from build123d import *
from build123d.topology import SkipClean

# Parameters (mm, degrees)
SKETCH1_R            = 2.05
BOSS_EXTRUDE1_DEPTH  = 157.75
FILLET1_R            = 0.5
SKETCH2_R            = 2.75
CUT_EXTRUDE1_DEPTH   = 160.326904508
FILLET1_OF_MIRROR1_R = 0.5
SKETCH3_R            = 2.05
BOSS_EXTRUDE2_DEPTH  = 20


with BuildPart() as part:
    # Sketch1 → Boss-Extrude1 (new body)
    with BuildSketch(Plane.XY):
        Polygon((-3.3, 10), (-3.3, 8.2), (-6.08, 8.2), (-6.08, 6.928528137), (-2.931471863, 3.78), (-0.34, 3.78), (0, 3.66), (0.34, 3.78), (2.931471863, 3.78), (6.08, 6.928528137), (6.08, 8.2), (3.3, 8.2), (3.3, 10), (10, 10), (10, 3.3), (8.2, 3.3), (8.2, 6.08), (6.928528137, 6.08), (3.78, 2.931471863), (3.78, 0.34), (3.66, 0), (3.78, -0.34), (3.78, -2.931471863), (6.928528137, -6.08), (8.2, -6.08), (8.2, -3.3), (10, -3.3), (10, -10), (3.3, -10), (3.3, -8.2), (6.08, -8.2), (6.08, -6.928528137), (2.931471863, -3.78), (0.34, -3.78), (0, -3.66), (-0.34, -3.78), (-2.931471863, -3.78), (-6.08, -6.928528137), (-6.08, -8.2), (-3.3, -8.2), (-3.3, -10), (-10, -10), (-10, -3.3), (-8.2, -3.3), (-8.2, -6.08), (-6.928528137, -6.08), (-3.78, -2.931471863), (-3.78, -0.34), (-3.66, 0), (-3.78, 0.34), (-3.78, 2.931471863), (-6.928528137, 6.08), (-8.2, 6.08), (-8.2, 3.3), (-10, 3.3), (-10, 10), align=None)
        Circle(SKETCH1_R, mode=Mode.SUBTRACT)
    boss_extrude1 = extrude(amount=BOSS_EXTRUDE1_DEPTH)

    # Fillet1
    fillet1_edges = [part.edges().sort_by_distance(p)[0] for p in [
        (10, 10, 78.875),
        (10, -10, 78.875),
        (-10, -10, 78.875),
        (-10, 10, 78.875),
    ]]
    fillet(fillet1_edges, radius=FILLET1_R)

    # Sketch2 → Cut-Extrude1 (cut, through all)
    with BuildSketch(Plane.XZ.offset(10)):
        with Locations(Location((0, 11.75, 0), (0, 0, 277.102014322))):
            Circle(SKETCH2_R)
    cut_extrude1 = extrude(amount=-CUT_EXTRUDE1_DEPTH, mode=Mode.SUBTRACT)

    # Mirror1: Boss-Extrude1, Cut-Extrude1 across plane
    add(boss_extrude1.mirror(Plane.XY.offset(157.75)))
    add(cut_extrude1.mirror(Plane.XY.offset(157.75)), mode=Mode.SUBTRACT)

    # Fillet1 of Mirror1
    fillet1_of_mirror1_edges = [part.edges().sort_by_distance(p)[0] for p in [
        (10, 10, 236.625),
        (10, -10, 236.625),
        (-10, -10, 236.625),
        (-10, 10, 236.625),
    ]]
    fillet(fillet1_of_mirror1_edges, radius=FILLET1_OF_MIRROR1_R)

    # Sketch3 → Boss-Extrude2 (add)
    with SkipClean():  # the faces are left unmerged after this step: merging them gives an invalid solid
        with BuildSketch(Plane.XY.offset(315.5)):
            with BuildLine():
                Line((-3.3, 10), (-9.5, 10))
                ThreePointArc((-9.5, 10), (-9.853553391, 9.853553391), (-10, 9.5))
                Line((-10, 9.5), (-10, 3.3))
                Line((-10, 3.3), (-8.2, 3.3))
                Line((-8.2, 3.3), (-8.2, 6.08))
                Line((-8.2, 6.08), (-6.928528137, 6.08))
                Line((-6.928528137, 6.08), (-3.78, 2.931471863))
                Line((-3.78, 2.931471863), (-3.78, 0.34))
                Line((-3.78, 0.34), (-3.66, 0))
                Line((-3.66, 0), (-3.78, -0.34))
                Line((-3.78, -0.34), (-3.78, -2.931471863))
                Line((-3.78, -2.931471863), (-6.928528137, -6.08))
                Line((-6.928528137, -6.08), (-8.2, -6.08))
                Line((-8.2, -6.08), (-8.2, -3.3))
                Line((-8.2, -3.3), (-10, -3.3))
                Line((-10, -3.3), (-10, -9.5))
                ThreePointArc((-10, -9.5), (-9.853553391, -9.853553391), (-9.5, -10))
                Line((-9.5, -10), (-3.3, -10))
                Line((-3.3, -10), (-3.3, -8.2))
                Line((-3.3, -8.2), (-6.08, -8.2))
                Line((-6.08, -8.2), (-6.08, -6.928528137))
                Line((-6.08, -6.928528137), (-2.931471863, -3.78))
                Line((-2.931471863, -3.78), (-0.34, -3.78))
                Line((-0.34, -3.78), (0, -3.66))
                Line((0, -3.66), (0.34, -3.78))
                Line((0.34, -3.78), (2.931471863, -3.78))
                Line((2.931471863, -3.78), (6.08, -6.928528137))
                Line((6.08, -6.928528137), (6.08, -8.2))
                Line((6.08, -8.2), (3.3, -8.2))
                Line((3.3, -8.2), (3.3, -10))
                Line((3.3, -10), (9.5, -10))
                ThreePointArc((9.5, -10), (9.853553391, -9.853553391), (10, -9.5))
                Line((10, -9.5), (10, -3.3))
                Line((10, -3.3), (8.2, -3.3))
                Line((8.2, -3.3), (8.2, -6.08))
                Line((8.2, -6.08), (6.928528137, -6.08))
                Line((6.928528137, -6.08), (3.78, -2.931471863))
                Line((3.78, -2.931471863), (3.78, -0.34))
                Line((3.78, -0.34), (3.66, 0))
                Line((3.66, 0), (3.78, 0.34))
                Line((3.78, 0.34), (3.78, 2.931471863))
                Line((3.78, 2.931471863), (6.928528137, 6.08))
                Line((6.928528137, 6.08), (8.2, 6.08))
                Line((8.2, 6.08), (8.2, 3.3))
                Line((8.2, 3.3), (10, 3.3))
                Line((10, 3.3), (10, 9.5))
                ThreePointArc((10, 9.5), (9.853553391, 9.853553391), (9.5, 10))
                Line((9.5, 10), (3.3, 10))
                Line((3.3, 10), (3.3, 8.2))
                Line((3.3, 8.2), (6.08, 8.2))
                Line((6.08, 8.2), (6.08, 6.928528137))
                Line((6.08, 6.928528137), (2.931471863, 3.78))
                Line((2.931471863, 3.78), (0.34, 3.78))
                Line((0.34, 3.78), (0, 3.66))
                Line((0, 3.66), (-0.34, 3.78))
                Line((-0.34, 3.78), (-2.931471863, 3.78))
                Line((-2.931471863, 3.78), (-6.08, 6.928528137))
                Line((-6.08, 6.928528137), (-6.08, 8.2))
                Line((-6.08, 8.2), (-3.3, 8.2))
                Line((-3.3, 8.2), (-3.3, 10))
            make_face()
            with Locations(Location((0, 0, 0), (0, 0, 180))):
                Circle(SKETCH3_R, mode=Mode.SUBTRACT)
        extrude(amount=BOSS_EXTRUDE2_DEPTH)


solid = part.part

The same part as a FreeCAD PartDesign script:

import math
import FreeCAD as App
import Part
import Sketcher

V = App.Vector


def edges_at(feature, points):
    """Names of the edges that pass closest to the given points."""
    edges = feature.Shape.Edges
    near = lambda p: min(range(len(edges)), key=lambda i: edges[i].distToShape(Part.Vertex(*p))[0])
    return sorted({f"Edge{near(p) + 1}" for p in points})

doc = App.newDocument("Part")
body = doc.addObject("PartDesign::Body", "Body")

# Sketch on XY plane
sketch1 = doc.addObject("Sketcher::SketchObject", "Sketch")
body.addObject(sketch1)
sketch1.AttachmentSupport = (doc.XY_Plane, [""])
sketch1.MapMode = "FlatFace"
sketch1.addGeometry(Part.LineSegment(V(-3.3, 8.2, 0), V(-3.3, 10, 0)), False)
sketch1.addGeometry(Part.LineSegment(V(-3.3, 10, 0), V(-10, 10, 0)), False)
sketch1.addGeometry(Part.LineSegment(V(-10, 10, 0), V(-10, 3.3, 0)), False)
sketch1.addGeometry(Part.LineSegment(V(-10, 3.3, 0), V(-8.2, 3.3, 0)), False)
sketch1.addGeometry(Part.LineSegment(V(-8.2, 3.3, 0), V(-8.2, 6.08, 0)), False)
sketch1.addGeometry(Part.LineSegment(V(-8.2, 6.08, 0), V(-6.93, 6.08, 0)), False)
sketch1.addGeometry(Part.LineSegment(V(-6.93, 6.08, 0), V(-3.78, 2.93, 0)), False)
sketch1.addGeometry(Part.LineSegment(V(-3.78, 2.93, 0), V(-3.78, 0.34, 0)), False)
sketch1.addGeometry(Part.LineSegment(V(-3.78, 0.34, 0), V(-3.66, 0, 0)), False)
sketch1.addGeometry(Part.LineSegment(V(-3.66, 0, 0), V(-3.78, -0.34, 0)), False)
sketch1.addGeometry(Part.LineSegment(V(-3.78, -0.34, 0), V(-3.78, -2.93, 0)), False)
sketch1.addGeometry(Part.LineSegment(V(-3.78, -2.93, 0), V(-6.93, -6.08, 0)), False)
sketch1.addGeometry(Part.LineSegment(V(-6.93, -6.08, 0), V(-8.2, -6.08, 0)), False)
sketch1.addGeometry(Part.LineSegment(V(-8.2, -6.08, 0), V(-8.2, -3.3, 0)), False)
sketch1.addGeometry(Part.LineSegment(V(-8.2, -3.3, 0), V(-10, -3.3, 0)), False)
sketch1.addGeometry(Part.LineSegment(V(-10, -3.3, 0), V(-10, -10, 0)), False)
sketch1.addGeometry(Part.LineSegment(V(-10, -10, 0), V(-3.3, -10, 0)), False)
sketch1.addGeometry(Part.LineSegment(V(-3.3, -10, 0), V(-3.3, -8.2, 0)), False)
sketch1.addGeometry(Part.LineSegment(V(-3.3, -8.2, 0), V(-6.08, -8.2, 0)), False)
sketch1.addGeometry(Part.LineSegment(V(-6.08, -8.2, 0), V(-6.08, -6.93, 0)), False)
sketch1.addGeometry(Part.LineSegment(V(-6.08, -6.93, 0), V(-2.93, -3.78, 0)), False)
sketch1.addGeometry(Part.LineSegment(V(-2.93, -3.78, 0), V(-0.34, -3.78, 0)), False)
sketch1.addGeometry(Part.LineSegment(V(-0.34, -3.78, 0), V(0, -3.66, 0)), False)
sketch1.addGeometry(Part.LineSegment(V(0, -3.66, 0), V(0.34, -3.78, 0)), False)
sketch1.addGeometry(Part.LineSegment(V(0.34, -3.78, 0), V(2.93, -3.78, 0)), False)
sketch1.addGeometry(Part.LineSegment(V(2.93, -3.78, 0), V(6.08, -6.93, 0)), False)
sketch1.addGeometry(Part.LineSegment(V(6.08, -6.93, 0), V(6.08, -8.2, 0)), False)
sketch1.addGeometry(Part.LineSegment(V(6.08, -8.2, 0), V(3.3, -8.2, 0)), False)
sketch1.addGeometry(Part.LineSegment(V(3.3, -8.2, 0), V(3.3, -10, 0)), False)
sketch1.addGeometry(Part.LineSegment(V(3.3, -10, 0), V(10, -10, 0)), False)
sketch1.addGeometry(Part.LineSegment(V(10, -10, 0), V(10, -3.3, 0)), False)
sketch1.addGeometry(Part.LineSegment(V(10, -3.3, 0), V(8.2, -3.3, 0)), False)
sketch1.addGeometry(Part.LineSegment(V(8.2, -3.3, 0), V(8.2, -6.08, 0)), False)
sketch1.addGeometry(Part.LineSegment(V(8.2, -6.08, 0), V(6.93, -6.08, 0)), False)
sketch1.addGeometry(Part.LineSegment(V(6.93, -6.08, 0), V(3.78, -2.93, 0)), False)
sketch1.addGeometry(Part.LineSegment(V(3.78, -2.93, 0), V(3.78, -0.34, 0)), False)
sketch1.addGeometry(Part.LineSegment(V(3.78, -0.34, 0), V(3.66, 0, 0)), False)
sketch1.addGeometry(Part.LineSegment(V(3.66, 0, 0), V(3.78, 0.34, 0)), False)
sketch1.addGeometry(Part.LineSegment(V(3.78, 0.34, 0), V(3.78, 2.93, 0)), False)
sketch1.addGeometry(Part.LineSegment(V(3.78, 2.93, 0), V(6.93, 6.08, 0)), False)
sketch1.addGeometry(Part.LineSegment(V(6.93, 6.08, 0), V(8.2, 6.08, 0)), False)
sketch1.addGeometry(Part.LineSegment(V(8.2, 6.08, 0), V(8.2, 3.3, 0)), False)
sketch1.addGeometry(Part.LineSegment(V(8.2, 3.3, 0), V(10, 3.3, 0)), False)
sketch1.addGeometry(Part.LineSegment(V(10, 3.3, 0), V(10, 10, 0)), False)
sketch1.addGeometry(Part.LineSegment(V(10, 10, 0), V(3.3, 10, 0)), False)
sketch1.addGeometry(Part.LineSegment(V(3.3, 10, 0), V(3.3, 8.2, 0)), False)
sketch1.addGeometry(Part.LineSegment(V(3.3, 8.2, 0), V(6.08, 8.2, 0)), False)
sketch1.addGeometry(Part.LineSegment(V(6.08, 8.2, 0), V(6.08, 6.93, 0)), False)
sketch1.addGeometry(Part.LineSegment(V(6.08, 6.93, 0), V(2.93, 3.78, 0)), False)
sketch1.addGeometry(Part.LineSegment(V(2.93, 3.78, 0), V(0.34, 3.78, 0)), False)
sketch1.addGeometry(Part.LineSegment(V(0.34, 3.78, 0), V(0, 3.66, 0)), False)
sketch1.addGeometry(Part.LineSegment(V(0, 3.66, 0), V(-0.34, 3.78, 0)), False)
sketch1.addGeometry(Part.LineSegment(V(-0.34, 3.78, 0), V(-2.93, 3.78, 0)), False)
sketch1.addGeometry(Part.LineSegment(V(-2.93, 3.78, 0), V(-6.08, 6.93, 0)), False)
sketch1.addGeometry(Part.LineSegment(V(-6.08, 6.93, 0), V(-6.08, 8.2, 0)), False)
sketch1.addGeometry(Part.LineSegment(V(-6.08, 8.2, 0), V(-3.3, 8.2, 0)), False)
sketch1.addGeometry(Part.Circle(V(0, 0, 0), V(0, 0, 1), 2.05), False)
sketch1.addConstraint(Sketcher.Constraint("Coincident", 0, 2, 1, 1))
sketch1.addConstraint(Sketcher.Constraint("Coincident", 1, 2, 2, 1))
sketch1.addConstraint(Sketcher.Constraint("Coincident", 2, 2, 3, 1))
sketch1.addConstraint(Sketcher.Constraint("Coincident", 3, 2, 4, 1))
sketch1.addConstraint(Sketcher.Constraint("Coincident", 4, 2, 5, 1))
sketch1.addConstraint(Sketcher.Constraint("Coincident", 5, 2, 6, 1))
sketch1.addConstraint(Sketcher.Constraint("Coincident", 6, 2, 7, 1))
sketch1.addConstraint(Sketcher.Constraint("Coincident", 7, 2, 8, 1))
sketch1.addConstraint(Sketcher.Constraint("Coincident", 8, 2, 9, 1))
sketch1.addConstraint(Sketcher.Constraint("Coincident", 9, 2, 10, 1))
sketch1.addConstraint(Sketcher.Constraint("Coincident", 10, 2, 11, 1))
sketch1.addConstraint(Sketcher.Constraint("Coincident", 11, 2, 12, 1))
sketch1.addConstraint(Sketcher.Constraint("Coincident", 12, 2, 13, 1))
sketch1.addConstraint(Sketcher.Constraint("Coincident", 13, 2, 14, 1))
sketch1.addConstraint(Sketcher.Constraint("Coincident", 14, 2, 15, 1))
sketch1.addConstraint(Sketcher.Constraint("Coincident", 15, 2, 16, 1))
sketch1.addConstraint(Sketcher.Constraint("Coincident", 16, 2, 17, 1))
sketch1.addConstraint(Sketcher.Constraint("Coincident", 17, 2, 18, 1))
sketch1.addConstraint(Sketcher.Constraint("Coincident", 18, 2, 19, 1))
sketch1.addConstraint(Sketcher.Constraint("Coincident", 19, 2, 20, 1))
sketch1.addConstraint(Sketcher.Constraint("Coincident", 20, 2, 21, 1))
sketch1.addConstraint(Sketcher.Constraint("Coincident", 21, 2, 22, 1))
sketch1.addConstraint(Sketcher.Constraint("Coincident", 22, 2, 23, 1))
sketch1.addConstraint(Sketcher.Constraint("Coincident", 23, 2, 24, 1))
sketch1.addConstraint(Sketcher.Constraint("Coincident", 24, 2, 25, 1))
sketch1.addConstraint(Sketcher.Constraint("Coincident", 25, 2, 26, 1))
sketch1.addConstraint(Sketcher.Constraint("Coincident", 26, 2, 27, 1))
sketch1.addConstraint(Sketcher.Constraint("Coincident", 27, 2, 28, 1))
sketch1.addConstraint(Sketcher.Constraint("Coincident", 28, 2, 29, 1))
sketch1.addConstraint(Sketcher.Constraint("Coincident", 29, 2, 30, 1))
sketch1.addConstraint(Sketcher.Constraint("Coincident", 30, 2, 31, 1))
sketch1.addConstraint(Sketcher.Constraint("Coincident", 31, 2, 32, 1))
sketch1.addConstraint(Sketcher.Constraint("Coincident", 32, 2, 33, 1))
sketch1.addConstraint(Sketcher.Constraint("Coincident", 33, 2, 34, 1))
sketch1.addConstraint(Sketcher.Constraint("Coincident", 34, 2, 35, 1))
sketch1.addConstraint(Sketcher.Constraint("Coincident", 35, 2, 36, 1))
sketch1.addConstraint(Sketcher.Constraint("Coincident", 36, 2, 37, 1))
sketch1.addConstraint(Sketcher.Constraint("Coincident", 37, 2, 38, 1))
sketch1.addConstraint(Sketcher.Constraint("Coincident", 38, 2, 39, 1))
sketch1.addConstraint(Sketcher.Constraint("Coincident", 39, 2, 40, 1))
sketch1.addConstraint(Sketcher.Constraint("Coincident", 40, 2, 41, 1))
sketch1.addConstraint(Sketcher.Constraint("Coincident", 41, 2, 42, 1))
sketch1.addConstraint(Sketcher.Constraint("Coincident", 42, 2, 43, 1))
sketch1.addConstraint(Sketcher.Constraint("Coincident", 43, 2, 44, 1))
sketch1.addConstraint(Sketcher.Constraint("Coincident", 44, 2, 45, 1))
sketch1.addConstraint(Sketcher.Constraint("Coincident", 45, 2, 46, 1))
sketch1.addConstraint(Sketcher.Constraint("Coincident", 46, 2, 47, 1))
sketch1.addConstraint(Sketcher.Constraint("Coincident", 47, 2, 48, 1))
sketch1.addConstraint(Sketcher.Constraint("Coincident", 48, 2, 49, 1))
sketch1.addConstraint(Sketcher.Constraint("Coincident", 49, 2, 50, 1))
sketch1.addConstraint(Sketcher.Constraint("Coincident", 50, 2, 51, 1))
sketch1.addConstraint(Sketcher.Constraint("Coincident", 51, 2, 52, 1))
sketch1.addConstraint(Sketcher.Constraint("Coincident", 52, 2, 53, 1))
sketch1.addConstraint(Sketcher.Constraint("Coincident", 53, 2, 54, 1))
sketch1.addConstraint(Sketcher.Constraint("Coincident", 54, 2, 55, 1))
sketch1.addConstraint(Sketcher.Constraint("Coincident", 55, 2, 0, 1))
sketch1.addConstraint(Sketcher.Constraint("Vertical", 0))
sketch1.addConstraint(Sketcher.Constraint("Horizontal", 1))
sketch1.addConstraint(Sketcher.Constraint("Vertical", 2))
sketch1.addConstraint(Sketcher.Constraint("Horizontal", 3))
sketch1.addConstraint(Sketcher.Constraint("Vertical", 4))
sketch1.addConstraint(Sketcher.Constraint("Horizontal", 5))
sketch1.addConstraint(Sketcher.Constraint("Vertical", 7))
sketch1.addConstraint(Sketcher.Constraint("Vertical", 10))
sketch1.addConstraint(Sketcher.Constraint("Horizontal", 12))
sketch1.addConstraint(Sketcher.Constraint("Vertical", 13))
sketch1.addConstraint(Sketcher.Constraint("Horizontal", 14))
sketch1.addConstraint(Sketcher.Constraint("Vertical", 15))
sketch1.addConstraint(Sketcher.Constraint("Horizontal", 16))
sketch1.addConstraint(Sketcher.Constraint("Vertical", 17))
sketch1.addConstraint(Sketcher.Constraint("Horizontal", 18))
sketch1.addConstraint(Sketcher.Constraint("Vertical", 19))
sketch1.addConstraint(Sketcher.Constraint("Horizontal", 21))
sketch1.addConstraint(Sketcher.Constraint("Horizontal", 24))
sketch1.addConstraint(Sketcher.Constraint("Vertical", 26))
sketch1.addConstraint(Sketcher.Constraint("Horizontal", 27))
sketch1.addConstraint(Sketcher.Constraint("Vertical", 28))
sketch1.addConstraint(Sketcher.Constraint("Horizontal", 29))
sketch1.addConstraint(Sketcher.Constraint("Vertical", 30))
sketch1.addConstraint(Sketcher.Constraint("Horizontal", 31))
sketch1.addConstraint(Sketcher.Constraint("Vertical", 32))
sketch1.addConstraint(Sketcher.Constraint("Horizontal", 33))
sketch1.addConstraint(Sketcher.Constraint("Vertical", 35))
sketch1.addConstraint(Sketcher.Constraint("Vertical", 38))
sketch1.addConstraint(Sketcher.Constraint("Horizontal", 40))
sketch1.addConstraint(Sketcher.Constraint("Vertical", 41))
sketch1.addConstraint(Sketcher.Constraint("Horizontal", 42))
sketch1.addConstraint(Sketcher.Constraint("Vertical", 43))
sketch1.addConstraint(Sketcher.Constraint("Horizontal", 44))
sketch1.addConstraint(Sketcher.Constraint("Vertical", 45))
sketch1.addConstraint(Sketcher.Constraint("Horizontal", 46))
sketch1.addConstraint(Sketcher.Constraint("Vertical", 47))
sketch1.addConstraint(Sketcher.Constraint("Horizontal", 49))
sketch1.addConstraint(Sketcher.Constraint("Horizontal", 52))
sketch1.addConstraint(Sketcher.Constraint("Vertical", 54))
sketch1.addConstraint(Sketcher.Constraint("Horizontal", 55))
sketch1.addConstraint(Sketcher.Constraint("Coincident", 56, 3, -1, 1))
sketch1.addConstraint(Sketcher.Constraint("Symmetric", 0, 2, 28, 2, -1, 1))
sketch1.addConstraint(Sketcher.Constraint("Symmetric", 2, 2, 30, 2, -1, 1))
sketch1.addConstraint(Sketcher.Constraint("Symmetric", 4, 2, 32, 2, -1, 1))
sketch1.addConstraint(Sketcher.Constraint("Symmetric", 6, 2, 34, 2, -1, 1))
sketch1.addConstraint(Sketcher.Constraint("Symmetric", 8, 2, 36, 2, -1, 1))
sketch1.addConstraint(Sketcher.Constraint("Symmetric", 9, 2, 37, 2, -1, 1))
sketch1.addConstraint(Sketcher.Constraint("Symmetric", 11, 2, 39, 2, -1, 1))
sketch1.addConstraint(Sketcher.Constraint("Symmetric", 13, 2, 41, 2, -1, 1))
sketch1.addConstraint(Sketcher.Constraint("Symmetric", 15, 2, 43, 2, -1, 1))
sketch1.addConstraint(Sketcher.Constraint("Symmetric", 17, 2, 45, 2, -1, 1))
sketch1.addConstraint(Sketcher.Constraint("Symmetric", 19, 2, 47, 2, -1, 1))
sketch1.addConstraint(Sketcher.Constraint("Symmetric", 20, 2, 48, 2, -1, 1))
sketch1.addConstraint(Sketcher.Constraint("Symmetric", 22, 2, 50, 2, -1, 1))
sketch1.addConstraint(Sketcher.Constraint("Symmetric", 23, 2, 51, 2, -1, 1))
sketch1.addConstraint(Sketcher.Constraint("Symmetric", 25, 2, 53, 2, -1, 1))
sketch1.addConstraint(Sketcher.Constraint("Symmetric", 21, 2, 23, 2, -2))
sketch1.addConstraint(Sketcher.Constraint("Symmetric", 19, 2, 25, 2, -2))
sketch1.addConstraint(Sketcher.Constraint("Symmetric", 17, 2, 27, 2, -2))
sketch1.addConstraint(Sketcher.Constraint("Symmetric", 15, 2, 29, 2, -2))
sketch1.addConstraint(Sketcher.Constraint("Symmetric", 13, 2, 31, 2, -2))
sketch1.addConstraint(Sketcher.Constraint("Symmetric", 11, 2, 33, 2, -2))
sketch1.addConstraint(Sketcher.Constraint("Symmetric", 10, 2, 34, 2, -2))
sketch1.addConstraint(Sketcher.Constraint("PointOnObject", 8, 2, -1))
sketch1.addConstraint(Sketcher.Constraint("PointOnObject", 22, 2, -2))
sketch1.addConstraint(Sketcher.Constraint("Perpendicular", 6, 11))
sketch1.addConstraint(Sketcher.Constraint("Parallel", 11, 20))
sketch1.addConstraint(Sketcher.Constraint("Perpendicular", 8, 22))
sketch1.addConstraint(Sketcher.Constraint("Perpendicular", 9, 23))
sketch1.addConstraint(Sketcher.Constraint("Perpendicular", 20, 25))
sketch1.addConstraint(Sketcher.Constraint("Parallel", 25, 34))
sketch1.addConstraint(Sketcher.Constraint("Perpendicular", 22, 36))
sketch1.addConstraint(Sketcher.Constraint("Perpendicular", 34, 39))
sketch1.addConstraint(Sketcher.Constraint("Perpendicular", 36, 50))
sketch1.addConstraint(Sketcher.Constraint("Perpendicular", 48, 53))
sketch1.addConstraint(Sketcher.Constraint("Horizontal", 46, 2, 54, 2))
sketch1.addConstraint(Sketcher.Constraint("Equal", 42, 0))
sketch1.addConstraint(Sketcher.Constraint("Equal", 44, 2))
sketch1.addConstraint(Sketcher.Constraint("Equal", 55, 4))
sketch1.addConstraint(Sketcher.Constraint("Equal", 52, 7))
sketch1.addConstraint(Sketcher.Constraint("Equal", 40, 19))
sketch1.addConstraint(Sketcher.Constraint("Equal", 11, 20))
sketch1.addConstraint(Sketcher.Constraint("Equal", 9, 22))
sketch1.addConstraint(Sketcher.Constraint("Diameter", 56, 4.1))
sketch1.addConstraint(Sketcher.Constraint("DistanceX", 1, 2, 1, 1, 6.7))
sketch1.addConstraint(Sketcher.Constraint("DistanceX", 3, 1, 3, 2, 1.8))
sketch1.addConstraint(Sketcher.Constraint("DistanceY", -1, 1, 0, 2, 10.0))
sketch1.addConstraint(Sketcher.Constraint("DistanceX", 18, 2, 18, 1, 2.78))
sketch1.addConstraint(Sketcher.Constraint("DistanceX", 6, 2, -1, 1, 3.78))
sketch1.addConstraint(Sketcher.Constraint("DistanceY", -1, 1, 7, 2, 0.34))
sketch1.addConstraint(Sketcher.Constraint("DistanceX", 8, 2, -1, 1, 3.66))
sketch1.addConstraint(Sketcher.Constraint("DistanceX", 5, 1, 5, 2, 1.271472))
pad1 = doc.addObject("PartDesign::Pad", "Pad")
body.addObject(pad1)
pad1.Profile = sketch1
pad1.Length = 157.75
doc.recompute()

fillet = doc.addObject("PartDesign::Fillet", "Fillet")
body.addObject(fillet)
fillet.Base = (pad1, edges_at(pad1, [
    (10, 10, 78.875),
    (10, -10, 78.875),
    (-10, -10, 78.875),
    (-10, 10, 78.875),
]))
fillet.Radius = 0.5

# Sketch on XZ plane
sketch2 = doc.addObject("Sketcher::SketchObject", "Sketch001")
body.addObject(sketch2)
sketch2.AttachmentSupport = (doc.XZ_Plane, [""])
sketch2.MapMode = "FlatFace"
sketch2.AttachmentOffset = App.Placement(V(0, 0, 10), App.Rotation())
sketch2.addGeometry(Part.Circle(V(0, 11.8, 0), V(0, 0, 1), 2.8), False)
sketch2.addConstraint(Sketcher.Constraint("PointOnObject", 0, 3, -2))
sketch2.addConstraint(Sketcher.Constraint("Diameter", 0, 5.5))
sketch2.addConstraint(Sketcher.Constraint("DistanceY", -1, 1, 0, 3, 11.75))
pocket1 = doc.addObject("PartDesign::Pocket", "Pocket")
body.addObject(pocket1)
pocket1.Profile = sketch2
pocket1.Type = "ThroughAll"
doc.recompute()

datumplane = doc.addObject("PartDesign::Plane", "DatumPlane")
body.addObject(datumplane)
datumplane.AttachmentSupport = (doc.XY_Plane, [""])
datumplane.MapMode = "FlatFace"
datumplane.AttachmentOffset = App.Placement(V(0, 0, 157.75), App.Rotation())
mirrored = doc.addObject("PartDesign::Mirrored", "Mirrored")
body.addObject(mirrored)
mirrored.Originals = [pad1, pocket1]
mirrored.MirrorPlane = (datumplane, [""])
body.Tip = mirrored
doc.recompute()

fillet2 = doc.addObject("PartDesign::Fillet", "Fillet001")
body.addObject(fillet2)
fillet2.Base = (mirrored, edges_at(mirrored, [
    (10, 10, 236.625),
    (10, -10, 236.625),
    (-10, -10, 236.625),
    (-10, 10, 236.625),
]))
fillet2.Radius = 0.5

# Sketch on XY plane
sketch3 = doc.addObject("Sketcher::SketchObject", "Sketch002")
body.addObject(sketch3)
sketch3.AttachmentSupport = (doc.XY_Plane, [""])
sketch3.MapMode = "FlatFace"
sketch3.AttachmentOffset = App.Placement(V(0, 0, 315.5), App.Rotation())
sketch3.addGeometry(Part.LineSegment(V(-3.3, 10, 0), V(-9.5, 10, 0)), False)
sketch3.addGeometry(Part.ArcOfCircle(Part.Circle(V(-9.5, 9.5, 0), V(0, 0, 1), 0.5), math.radians(90), math.radians(180)), False)
sketch3.addGeometry(Part.LineSegment(V(-10, 9.5, 0), V(-10, 3.3, 0)), False)
sketch3.addGeometry(Part.LineSegment(V(-10, 3.3, 0), V(-8.2, 3.3, 0)), False)
sketch3.addGeometry(Part.LineSegment(V(-8.2, 3.3, 0), V(-8.2, 6.08, 0)), False)
sketch3.addGeometry(Part.LineSegment(V(-8.2, 6.08, 0), V(-6.93, 6.08, 0)), False)
sketch3.addGeometry(Part.LineSegment(V(-6.93, 6.08, 0), V(-3.78, 2.93, 0)), False)
sketch3.addGeometry(Part.LineSegment(V(-3.78, 2.93, 0), V(-3.78, 0.34, 0)), False)
sketch3.addGeometry(Part.LineSegment(V(-3.78, 0.34, 0), V(-3.66, 0, 0)), False)
sketch3.addGeometry(Part.LineSegment(V(-3.66, 0, 0), V(-3.78, -0.34, 0)), False)
sketch3.addGeometry(Part.LineSegment(V(-3.78, -0.34, 0), V(-3.78, -2.93, 0)), False)
sketch3.addGeometry(Part.LineSegment(V(-3.78, -2.93, 0), V(-6.93, -6.08, 0)), False)
sketch3.addGeometry(Part.LineSegment(V(-6.93, -6.08, 0), V(-8.2, -6.08, 0)), False)
sketch3.addGeometry(Part.LineSegment(V(-8.2, -6.08, 0), V(-8.2, -3.3, 0)), False)
sketch3.addGeometry(Part.LineSegment(V(-8.2, -3.3, 0), V(-10, -3.3, 0)), False)
sketch3.addGeometry(Part.LineSegment(V(-10, -3.3, 0), V(-10, -9.5, 0)), False)
sketch3.addGeometry(Part.ArcOfCircle(Part.Circle(V(-9.5, -9.5, 0), V(0, 0, 1), 0.5), math.radians(180), math.radians(270)), False)
sketch3.addGeometry(Part.LineSegment(V(-9.5, -10, 0), V(-3.3, -10, 0)), False)
sketch3.addGeometry(Part.LineSegment(V(-3.3, -10, 0), V(-3.3, -8.2, 0)), False)
sketch3.addGeometry(Part.LineSegment(V(-3.3, -8.2, 0), V(-6.08, -8.2, 0)), False)
sketch3.addGeometry(Part.LineSegment(V(-6.08, -8.2, 0), V(-6.08, -6.93, 0)), False)
sketch3.addGeometry(Part.LineSegment(V(-6.08, -6.93, 0), V(-2.93, -3.78, 0)), False)
sketch3.addGeometry(Part.LineSegment(V(-2.93, -3.78, 0), V(-0.34, -3.78, 0)), False)
sketch3.addGeometry(Part.LineSegment(V(-0.34, -3.78, 0), V(0, -3.66, 0)), False)
sketch3.addGeometry(Part.LineSegment(V(0, -3.66, 0), V(0.34, -3.78, 0)), False)
sketch3.addGeometry(Part.LineSegment(V(0.34, -3.78, 0), V(2.93, -3.78, 0)), False)
sketch3.addGeometry(Part.LineSegment(V(2.93, -3.78, 0), V(6.08, -6.93, 0)), False)
sketch3.addGeometry(Part.LineSegment(V(6.08, -6.93, 0), V(6.08, -8.2, 0)), False)
sketch3.addGeometry(Part.LineSegment(V(6.08, -8.2, 0), V(3.3, -8.2, 0)), False)
sketch3.addGeometry(Part.LineSegment(V(3.3, -8.2, 0), V(3.3, -10, 0)), False)
sketch3.addGeometry(Part.LineSegment(V(3.3, -10, 0), V(9.5, -10, 0)), False)
sketch3.addGeometry(Part.ArcOfCircle(Part.Circle(V(9.5, -9.5, 0), V(0, 0, 1), 0.5), math.radians(-90), math.radians(0)), False)
sketch3.addGeometry(Part.LineSegment(V(10, -9.5, 0), V(10, -3.3, 0)), False)
sketch3.addGeometry(Part.LineSegment(V(10, -3.3, 0), V(8.2, -3.3, 0)), False)
sketch3.addGeometry(Part.LineSegment(V(8.2, -3.3, 0), V(8.2, -6.08, 0)), False)
sketch3.addGeometry(Part.LineSegment(V(8.2, -6.08, 0), V(6.93, -6.08, 0)), False)
sketch3.addGeometry(Part.LineSegment(V(6.93, -6.08, 0), V(3.78, -2.93, 0)), False)
sketch3.addGeometry(Part.LineSegment(V(3.78, -2.93, 0), V(3.78, -0.34, 0)), False)
sketch3.addGeometry(Part.LineSegment(V(3.78, -0.34, 0), V(3.66, 0, 0)), False)
sketch3.addGeometry(Part.LineSegment(V(3.66, 0, 0), V(3.78, 0.34, 0)), False)
sketch3.addGeometry(Part.LineSegment(V(3.78, 0.34, 0), V(3.78, 2.93, 0)), False)
sketch3.addGeometry(Part.LineSegment(V(3.78, 2.93, 0), V(6.93, 6.08, 0)), False)
sketch3.addGeometry(Part.LineSegment(V(6.93, 6.08, 0), V(8.2, 6.08, 0)), False)
sketch3.addGeometry(Part.LineSegment(V(8.2, 6.08, 0), V(8.2, 3.3, 0)), False)
sketch3.addGeometry(Part.LineSegment(V(8.2, 3.3, 0), V(10, 3.3, 0)), False)
sketch3.addGeometry(Part.LineSegment(V(10, 3.3, 0), V(10, 9.5, 0)), False)
sketch3.addGeometry(Part.ArcOfCircle(Part.Circle(V(9.5, 9.5, 0), V(0, 0, 1), 0.5), math.radians(0), math.radians(90)), False)
sketch3.addGeometry(Part.LineSegment(V(9.5, 10, 0), V(3.3, 10, 0)), False)
sketch3.addGeometry(Part.LineSegment(V(3.3, 10, 0), V(3.3, 8.2, 0)), False)
sketch3.addGeometry(Part.LineSegment(V(3.3, 8.2, 0), V(6.08, 8.2, 0)), False)
sketch3.addGeometry(Part.LineSegment(V(6.08, 8.2, 0), V(6.08, 6.93, 0)), False)
sketch3.addGeometry(Part.LineSegment(V(6.08, 6.93, 0), V(2.93, 3.78, 0)), False)
sketch3.addGeometry(Part.LineSegment(V(2.93, 3.78, 0), V(0.34, 3.78, 0)), False)
sketch3.addGeometry(Part.LineSegment(V(0.34, 3.78, 0), V(0, 3.66, 0)), False)
sketch3.addGeometry(Part.LineSegment(V(0, 3.66, 0), V(-0.34, 3.78, 0)), False)
sketch3.addGeometry(Part.LineSegment(V(-0.34, 3.78, 0), V(-2.93, 3.78, 0)), False)
sketch3.addGeometry(Part.LineSegment(V(-2.93, 3.78, 0), V(-6.08, 6.93, 0)), False)
sketch3.addGeometry(Part.LineSegment(V(-6.08, 6.93, 0), V(-6.08, 8.2, 0)), False)
sketch3.addGeometry(Part.LineSegment(V(-6.08, 8.2, 0), V(-3.3, 8.2, 0)), False)
sketch3.addGeometry(Part.LineSegment(V(-3.3, 8.2, 0), V(-3.3, 10, 0)), False)
sketch3.addGeometry(Part.Circle(V(0, 0, 0), V(0, 0, 1), 2.05), False)
sketch3.addConstraint(Sketcher.Constraint("Tangent", 0, 2, 1, 1))
sketch3.addConstraint(Sketcher.Constraint("Tangent", 1, 2, 2, 1))
sketch3.addConstraint(Sketcher.Constraint("Coincident", 2, 2, 3, 1))
sketch3.addConstraint(Sketcher.Constraint("Coincident", 3, 2, 4, 1))
sketch3.addConstraint(Sketcher.Constraint("Coincident", 4, 2, 5, 1))
sketch3.addConstraint(Sketcher.Constraint("Coincident", 5, 2, 6, 1))
sketch3.addConstraint(Sketcher.Constraint("Coincident", 6, 2, 7, 1))
sketch3.addConstraint(Sketcher.Constraint("Coincident", 7, 2, 8, 1))
sketch3.addConstraint(Sketcher.Constraint("Coincident", 8, 2, 9, 1))
sketch3.addConstraint(Sketcher.Constraint("Coincident", 9, 2, 10, 1))
sketch3.addConstraint(Sketcher.Constraint("Coincident", 10, 2, 11, 1))
sketch3.addConstraint(Sketcher.Constraint("Coincident", 11, 2, 12, 1))
sketch3.addConstraint(Sketcher.Constraint("Coincident", 12, 2, 13, 1))
sketch3.addConstraint(Sketcher.Constraint("Coincident", 13, 2, 14, 1))
sketch3.addConstraint(Sketcher.Constraint("Coincident", 14, 2, 15, 1))
sketch3.addConstraint(Sketcher.Constraint("Tangent", 15, 2, 16, 1))
sketch3.addConstraint(Sketcher.Constraint("Tangent", 16, 2, 17, 1))
sketch3.addConstraint(Sketcher.Constraint("Coincident", 17, 2, 18, 1))
sketch3.addConstraint(Sketcher.Constraint("Coincident", 18, 2, 19, 1))
sketch3.addConstraint(Sketcher.Constraint("Coincident", 19, 2, 20, 1))
sketch3.addConstraint(Sketcher.Constraint("Coincident", 20, 2, 21, 1))
sketch3.addConstraint(Sketcher.Constraint("Coincident", 21, 2, 22, 1))
sketch3.addConstraint(Sketcher.Constraint("Coincident", 22, 2, 23, 1))
sketch3.addConstraint(Sketcher.Constraint("Coincident", 23, 2, 24, 1))
sketch3.addConstraint(Sketcher.Constraint("Coincident", 24, 2, 25, 1))
sketch3.addConstraint(Sketcher.Constraint("Coincident", 25, 2, 26, 1))
sketch3.addConstraint(Sketcher.Constraint("Coincident", 26, 2, 27, 1))
sketch3.addConstraint(Sketcher.Constraint("Coincident", 27, 2, 28, 1))
sketch3.addConstraint(Sketcher.Constraint("Coincident", 28, 2, 29, 1))
sketch3.addConstraint(Sketcher.Constraint("Coincident", 29, 2, 30, 1))
sketch3.addConstraint(Sketcher.Constraint("Tangent", 30, 2, 31, 1))
sketch3.addConstraint(Sketcher.Constraint("Tangent", 31, 2, 32, 1))
sketch3.addConstraint(Sketcher.Constraint("Coincident", 32, 2, 33, 1))
sketch3.addConstraint(Sketcher.Constraint("Coincident", 33, 2, 34, 1))
sketch3.addConstraint(Sketcher.Constraint("Coincident", 34, 2, 35, 1))
sketch3.addConstraint(Sketcher.Constraint("Coincident", 35, 2, 36, 1))
sketch3.addConstraint(Sketcher.Constraint("Coincident", 36, 2, 37, 1))
sketch3.addConstraint(Sketcher.Constraint("Coincident", 37, 2, 38, 1))
sketch3.addConstraint(Sketcher.Constraint("Coincident", 38, 2, 39, 1))
sketch3.addConstraint(Sketcher.Constraint("Coincident", 39, 2, 40, 1))
sketch3.addConstraint(Sketcher.Constraint("Coincident", 40, 2, 41, 1))
sketch3.addConstraint(Sketcher.Constraint("Coincident", 41, 2, 42, 1))
sketch3.addConstraint(Sketcher.Constraint("Coincident", 42, 2, 43, 1))
sketch3.addConstraint(Sketcher.Constraint("Coincident", 43, 2, 44, 1))
sketch3.addConstraint(Sketcher.Constraint("Coincident", 44, 2, 45, 1))
sketch3.addConstraint(Sketcher.Constraint("Tangent", 45, 2, 46, 1))
sketch3.addConstraint(Sketcher.Constraint("Tangent", 46, 2, 47, 1))
sketch3.addConstraint(Sketcher.Constraint("Coincident", 47, 2, 48, 1))
sketch3.addConstraint(Sketcher.Constraint("Coincident", 48, 2, 49, 1))
sketch3.addConstraint(Sketcher.Constraint("Coincident", 49, 2, 50, 1))
sketch3.addConstraint(Sketcher.Constraint("Coincident", 50, 2, 51, 1))
sketch3.addConstraint(Sketcher.Constraint("Coincident", 51, 2, 52, 1))
sketch3.addConstraint(Sketcher.Constraint("Coincident", 52, 2, 53, 1))
sketch3.addConstraint(Sketcher.Constraint("Coincident", 53, 2, 54, 1))
sketch3.addConstraint(Sketcher.Constraint("Coincident", 54, 2, 55, 1))
sketch3.addConstraint(Sketcher.Constraint("Coincident", 55, 2, 56, 1))
sketch3.addConstraint(Sketcher.Constraint("Coincident", 56, 2, 57, 1))
sketch3.addConstraint(Sketcher.Constraint("Coincident", 57, 2, 58, 1))
sketch3.addConstraint(Sketcher.Constraint("Coincident", 58, 2, 59, 1))
sketch3.addConstraint(Sketcher.Constraint("Coincident", 59, 2, 0, 1))
sketch3.addConstraint(Sketcher.Constraint("Horizontal", 0))
sketch3.addConstraint(Sketcher.Constraint("Vertical", 2))
sketch3.addConstraint(Sketcher.Constraint("Horizontal", 3))
sketch3.addConstraint(Sketcher.Constraint("Vertical", 4))
sketch3.addConstraint(Sketcher.Constraint("Horizontal", 5))
sketch3.addConstraint(Sketcher.Constraint("Vertical", 7))
sketch3.addConstraint(Sketcher.Constraint("Vertical", 10))
sketch3.addConstraint(Sketcher.Constraint("Horizontal", 12))
sketch3.addConstraint(Sketcher.Constraint("Vertical", 13))
sketch3.addConstraint(Sketcher.Constraint("Horizontal", 14))
sketch3.addConstraint(Sketcher.Constraint("Vertical", 15))
sketch3.addConstraint(Sketcher.Constraint("Horizontal", 17))
sketch3.addConstraint(Sketcher.Constraint("Vertical", 18))
sketch3.addConstraint(Sketcher.Constraint("Horizontal", 19))
sketch3.addConstraint(Sketcher.Constraint("Vertical", 20))
sketch3.addConstraint(Sketcher.Constraint("Horizontal", 22))
sketch3.addConstraint(Sketcher.Constraint("Horizontal", 25))
sketch3.addConstraint(Sketcher.Constraint("Vertical", 27))
sketch3.addConstraint(Sketcher.Constraint("Horizontal", 28))
sketch3.addConstraint(Sketcher.Constraint("Vertical", 29))
sketch3.addConstraint(Sketcher.Constraint("Horizontal", 30))
sketch3.addConstraint(Sketcher.Constraint("Vertical", 32))
sketch3.addConstraint(Sketcher.Constraint("Horizontal", 33))
sketch3.addConstraint(Sketcher.Constraint("Vertical", 34))
sketch3.addConstraint(Sketcher.Constraint("Horizontal", 35))
sketch3.addConstraint(Sketcher.Constraint("Vertical", 37))
sketch3.addConstraint(Sketcher.Constraint("Vertical", 40))
sketch3.addConstraint(Sketcher.Constraint("Horizontal", 42))
sketch3.addConstraint(Sketcher.Constraint("Vertical", 43))
sketch3.addConstraint(Sketcher.Constraint("Horizontal", 44))
sketch3.addConstraint(Sketcher.Constraint("Vertical", 45))
sketch3.addConstraint(Sketcher.Constraint("Horizontal", 47))
sketch3.addConstraint(Sketcher.Constraint("Vertical", 48))
sketch3.addConstraint(Sketcher.Constraint("Horizontal", 49))
sketch3.addConstraint(Sketcher.Constraint("Vertical", 50))
sketch3.addConstraint(Sketcher.Constraint("Horizontal", 52))
sketch3.addConstraint(Sketcher.Constraint("Horizontal", 55))
sketch3.addConstraint(Sketcher.Constraint("Vertical", 57))
sketch3.addConstraint(Sketcher.Constraint("Horizontal", 58))
sketch3.addConstraint(Sketcher.Constraint("Vertical", 59))
sketch3.addConstraint(Sketcher.Constraint("Coincident", 60, 3, -1, 1))
sketch3.addConstraint(Sketcher.Constraint("Equal", 1, 16))
sketch3.addConstraint(Sketcher.Constraint("Equal", 16, 31))
sketch3.addConstraint(Sketcher.Constraint("Equal", 31, 46))
sketch3.addConstraint(Sketcher.Constraint("Symmetric", 1, 3, 31, 3, -1, 1))
sketch3.addConstraint(Sketcher.Constraint("Symmetric", 16, 3, 46, 3, -1, 1))
sketch3.addConstraint(Sketcher.Constraint("Symmetric", 3, 2, 33, 2, -1, 1))
sketch3.addConstraint(Sketcher.Constraint("Symmetric", 5, 2, 35, 2, -1, 1))
sketch3.addConstraint(Sketcher.Constraint("Symmetric", 6, 2, 36, 2, -1, 1))
sketch3.addConstraint(Sketcher.Constraint("Symmetric", 8, 2, 38, 2, -1, 1))
sketch3.addConstraint(Sketcher.Constraint("Symmetric", 9, 2, 39, 2, -1, 1))
sketch3.addConstraint(Sketcher.Constraint("Symmetric", 11, 2, 41, 2, -1, 1))
sketch3.addConstraint(Sketcher.Constraint("Symmetric", 13, 2, 43, 2, -1, 1))
sketch3.addConstraint(Sketcher.Constraint("Symmetric", 18, 2, 48, 2, -1, 1))
sketch3.addConstraint(Sketcher.Constraint("Symmetric", 20, 2, 50, 2, -1, 1))
sketch3.addConstraint(Sketcher.Constraint("Symmetric", 21, 2, 51, 2, -1, 1))
sketch3.addConstraint(Sketcher.Constraint("Symmetric", 23, 2, 53, 2, -1, 1))
sketch3.addConstraint(Sketcher.Constraint("Symmetric", 24, 2, 54, 2, -1, 1))
sketch3.addConstraint(Sketcher.Constraint("Symmetric", 26, 2, 56, 2, -1, 1))
sketch3.addConstraint(Sketcher.Constraint("Symmetric", 28, 2, 58, 2, -1, 1))
sketch3.addConstraint(Sketcher.Constraint("Symmetric", 16, 3, 31, 3, -2))
sketch3.addConstraint(Sketcher.Constraint("Symmetric", 22, 2, 24, 2, -2))
sketch3.addConstraint(Sketcher.Constraint("Symmetric", 20, 2, 26, 2, -2))
sketch3.addConstraint(Sketcher.Constraint("Symmetric", 18, 2, 28, 2, -2))
sketch3.addConstraint(Sketcher.Constraint("Symmetric", 13, 2, 33, 2, -2))
sketch3.addConstraint(Sketcher.Constraint("Symmetric", 11, 2, 35, 2, -2))
sketch3.addConstraint(Sketcher.Constraint("Symmetric", 10, 2, 36, 2, -2))
sketch3.addConstraint(Sketcher.Constraint("PointOnObject", 8, 2, -1))
sketch3.addConstraint(Sketcher.Constraint("PointOnObject", 23, 2, -2))
sketch3.addConstraint(Sketcher.Constraint("Perpendicular", 6, 11))
sketch3.addConstraint(Sketcher.Constraint("Parallel", 11, 21))
sketch3.addConstraint(Sketcher.Constraint("Perpendicular", 8, 23))
sketch3.addConstraint(Sketcher.Constraint("Perpendicular", 9, 24))
sketch3.addConstraint(Sketcher.Constraint("Perpendicular", 21, 26))
sketch3.addConstraint(Sketcher.Constraint("Perpendicular", 23, 38))
sketch3.addConstraint(Sketcher.Constraint("Perpendicular", 36, 41))
sketch3.addConstraint(Sketcher.Constraint("Perpendicular", 38, 53))
sketch3.addConstraint(Sketcher.Constraint("Perpendicular", 51, 56))
sketch3.addConstraint(Sketcher.Constraint("Equal", 47, 2))
sketch3.addConstraint(Sketcher.Constraint("Equal", 58, 4))
sketch3.addConstraint(Sketcher.Constraint("Equal", 55, 7))
sketch3.addConstraint(Sketcher.Constraint("Equal", 44, 18))
sketch3.addConstraint(Sketcher.Constraint("Equal", 42, 20))
sketch3.addConstraint(Sketcher.Constraint("Equal", 11, 21))
sketch3.addConstraint(Sketcher.Constraint("Equal", 9, 23))
sketch3.addConstraint(Sketcher.Constraint("Diameter", 60, 4.1))
sketch3.addConstraint(Sketcher.Constraint("Radius", 1, 0.5))
sketch3.addConstraint(Sketcher.Constraint("DistanceX", 0, 2, 0, 1, 6.2))
sketch3.addConstraint(Sketcher.Constraint("DistanceX", 3, 1, 3, 2, 1.8))
sketch3.addConstraint(Sketcher.Constraint("DistanceY", -1, 1, 0, 2, 10.0))
sketch3.addConstraint(Sketcher.Constraint("DistanceX", 19, 2, 19, 1, 2.78))
sketch3.addConstraint(Sketcher.Constraint("DistanceX", 6, 2, -1, 1, 3.78))
sketch3.addConstraint(Sketcher.Constraint("DistanceY", -1, 1, 7, 2, 0.34))
sketch3.addConstraint(Sketcher.Constraint("DistanceX", 8, 2, -1, 1, 3.66))
sketch3.addConstraint(Sketcher.Constraint("DistanceX", 5, 1, 5, 2, 1.271472))
pad2 = doc.addObject("PartDesign::Pad", "Pad001")
body.addObject(pad2)
pad2.Profile = sketch3
pad2.Length = 20

doc.recompute()
